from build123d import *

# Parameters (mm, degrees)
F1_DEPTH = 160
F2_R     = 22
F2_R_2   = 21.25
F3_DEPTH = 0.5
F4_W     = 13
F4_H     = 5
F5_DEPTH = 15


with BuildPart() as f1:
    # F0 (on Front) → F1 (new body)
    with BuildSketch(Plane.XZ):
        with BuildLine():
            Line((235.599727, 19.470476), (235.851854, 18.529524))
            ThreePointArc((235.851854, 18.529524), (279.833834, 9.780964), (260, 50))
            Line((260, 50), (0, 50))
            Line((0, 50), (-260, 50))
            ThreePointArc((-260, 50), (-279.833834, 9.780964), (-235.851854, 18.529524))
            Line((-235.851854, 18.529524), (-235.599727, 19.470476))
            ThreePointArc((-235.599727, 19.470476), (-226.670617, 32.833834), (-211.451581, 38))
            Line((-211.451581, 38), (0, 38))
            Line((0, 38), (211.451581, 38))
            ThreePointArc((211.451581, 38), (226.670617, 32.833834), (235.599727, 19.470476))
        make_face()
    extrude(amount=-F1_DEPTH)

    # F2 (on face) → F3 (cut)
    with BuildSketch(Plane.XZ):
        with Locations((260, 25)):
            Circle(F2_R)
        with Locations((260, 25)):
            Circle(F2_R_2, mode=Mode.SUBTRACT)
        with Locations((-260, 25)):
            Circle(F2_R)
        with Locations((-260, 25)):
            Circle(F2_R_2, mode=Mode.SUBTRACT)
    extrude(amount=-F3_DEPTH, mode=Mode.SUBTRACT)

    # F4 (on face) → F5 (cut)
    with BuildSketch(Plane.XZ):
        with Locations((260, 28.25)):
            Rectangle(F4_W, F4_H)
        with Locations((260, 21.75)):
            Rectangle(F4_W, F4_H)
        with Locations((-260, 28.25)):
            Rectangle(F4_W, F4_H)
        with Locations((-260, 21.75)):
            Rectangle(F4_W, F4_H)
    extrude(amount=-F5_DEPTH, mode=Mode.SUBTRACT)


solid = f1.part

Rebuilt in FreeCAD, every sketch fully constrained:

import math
import FreeCAD as App
import Part
import Sketcher
from FreeCAD import Vector
Q = App.Units.Quantity

doc = App.newDocument("Part")
body = doc.addObject("PartDesign::Body", "Body")

# Sketch on XZ plane
sketch1 = doc.addObject("Sketcher::SketchObject", "Sketch")
body.addObject(sketch1)
sketch1.AttachmentSupport = (doc.XZ_Plane, [""])
sketch1.MapMode = "FlatFace"
sketch1.addGeometry(Part.LineSegment(Vector(235.6, 19.5, 0), Vector(235.9, 18.5, 0)), False)
sketch1.addGeometry(Part.ArcOfCircle(Part.Circle(Vector(260, 25, 0), Vector(0, 0, 1), 25), math.radians(-165), math.radians(90)), False)
sketch1.addGeometry(Part.LineSegment(Vector(260, 50, 0), Vector(-260, 50, 0)), False)
sketch1.addGeometry(Part.ArcOfCircle(Part.Circle(Vector(-260, 25, 0), Vector(0, 0, 1), 25), math.radians(90), math.radians(345)), False)
sketch1.addGeometry(Part.LineSegment(Vector(-235.9, 18.5, 0), Vector(-235.6, 19.5, 0)), False)
sketch1.addGeometry(Part.ArcOfCircle(Part.Circle(Vector(-211.5, 13, 0), Vector(0, 0, 1), 25), math.radians(90), math.radians(165)), False)
sketch1.addGeometry(Part.LineSegment(Vector(-211.5, 38, 0), Vector(211.5, 38, 0)), False)
sketch1.addGeometry(Part.ArcOfCircle(Part.Circle(Vector(211.5, 13, 0), Vector(0, 0, 1), 25), math.radians(15), math.radians(90)), False)
sketch1.addConstraint(Sketcher.Constraint("Tangent", 0, 2, 1, 1))
sketch1.addConstraint(Sketcher.Constraint("Tangent", 1, 2, 2, 1))
sketch1.addConstraint(Sketcher.Constraint("Tangent", 2, 2, 3, 1))
sketch1.addConstraint(Sketcher.Constraint("Tangent", 3, 2, 4, 1))
sketch1.addConstraint(Sketcher.Constraint("Tangent", 4, 2, 5, 2))
sketch1.addConstraint(Sketcher.Constraint("Tangent", 5, 1, 6, 1))
sketch1.addConstraint(Sketcher.Constraint("Tangent", 6, 2, 7, 2))
sketch1.addConstraint(Sketcher.Constraint("Tangent", 7, 1, 0, 1))
sketch1.addConstraint(Sketcher.Constraint("Horizontal", 2))
sketch1.addConstraint(Sketcher.Constraint("Horizontal", 6))
sketch1.addConstraint(Sketcher.Constraint("Equal", 1, 3))
sketch1.addConstraint(Sketcher.Constraint("Equal", 3, 5))
sketch1.addConstraint(Sketcher.Constraint("Equal", 5, 7))
sketch1.addConstraint(Sketcher.Constraint("Symmetric", 0, 2, 3, 2, -2))
sketch1.addConstraint(Sketcher.Constraint("Radius", 1, 25.0))
sketch1.addConstraint(Sketcher.Constraint("DistanceX", 2, 2, 2, 1, 520.0))
sketch1.addConstraint(Sketcher.Constraint("Angle", 0, Q("-75.000019 deg")))
sketch1.addConstraint(Sketcher.Constraint("DistanceY", -1, 1, 1, 3, 25.0))
sketch1.addConstraint(Sketcher.Constraint("DistanceY", -1, 1, 5, 3, 13.000001))
pad1 = doc.addObject("PartDesign::Pad", "Pad")
body.addObject(pad1)
pad1.Profile = sketch1
pad1.Length = 160
pad1.Reversed = True

# Sketch on XZ plane
sketch2 = doc.addObject("Sketcher::SketchObject", "Sketch001")
body.addObject(sketch2)
sketch2.AttachmentSupport = (doc.XZ_Plane, [""])
sketch2.MapMode = "FlatFace"
sketch2.addGeometry(Part.Circle(Vector(260, 25, 0), Vector(0, 0, 1), 22), False)
sketch2.addGeometry(Part.Circle(Vector(260, 25, 0), Vector(0, 0, 1), 21), False)
sketch2.addGeometry(Part.Circle(Vector(-260, 25, 0), Vector(0, 0, 1), 22), False)
sketch2.addGeometry(Part.Circle(Vector(-260, 25, 0), Vector(0, 0, 1), 21), False)
sketch2.addConstraint(Sketcher.Constraint("Coincident", 1, 3, 0, 3))
sketch2.addConstraint(Sketcher.Constraint("Coincident", 3, 3, 2, 3))
sketch2.addConstraint(Sketcher.Constraint("Equal", 0, 2))
sketch2.addConstraint(Sketcher.Constraint("Equal", 1, 3))
sketch2.addConstraint(Sketcher.Constraint("Symmetric", 0, 3, 2, 3, -2))
sketch2.addConstraint(Sketcher.Constraint("Diameter", 0, 44.0))
sketch2.addConstraint(Sketcher.Constraint("Diameter", 1, 42.5))
sketch2.addConstraint(Sketcher.Constraint("DistanceX", -1, 1, 0, 3, 260.0))
sketch2.addConstraint(Sketcher.Constraint("DistanceY", -1, 1, 0, 3, 25.0))
pocket1 = doc.addObject("PartDesign::Pocket", "Pocket")
body.addObject(pocket1)
pocket1.Profile = sketch2
pocket1.Length = 0.5

# Sketch on XZ plane
sketch3 = doc.addObject("Sketcher::SketchObject", "Sketch002")
body.addObject(sketch3)
sketch3.AttachmentSupport = (doc.XZ_Plane, [""])
sketch3.MapMode = "FlatFace"
sketch3.addGeometry(Part.LineSegment(Vector(254, 31, 0), Vector(254, 26, 0)), False)
sketch3.addGeometry(Part.LineSegment(Vector(254, 26, 0), Vector(266, 26, 0)), False)
sketch3.addGeometry(Part.LineSegment(Vector(266, 26, 0), Vector(266, 31, 0)), False)
sketch3.addGeometry(Part.LineSegment(Vector(266, 31, 0), Vector(254, 31, 0)), False)
sketch3.addGeometry(Part.LineSegment(Vector(254, 24, 0), Vector(254, 19, 0)), False)
sketch3.addGeometry(Part.LineSegment(Vector(254, 19, 0), Vector(266, 19, 0)), False)
sketch3.addGeometry(Part.LineSegment(Vector(266, 19, 0), Vector(266, 24, 0)), False)
sketch3.addGeometry(Part.LineSegment(Vector(266, 24, 0), Vector(254, 24, 0)), False)
sketch3.addGeometry(Part.LineSegment(Vector(-266, 31, 0), Vector(-266, 26, 0)), False)
sketch3.addGeometry(Part.LineSegment(Vector(-266, 26, 0), Vector(-254, 26, 0)), False)
sketch3.addGeometry(Part.LineSegment(Vector(-254, 26, 0), Vector(-254, 31, 0)), False)
sketch3.addGeometry(Part.LineSegment(Vector(-254, 31, 0), Vector(-266, 31, 0)), False)
sketch3.addGeometry(Part.LineSegment(Vector(-266, 24, 0), Vector(-266, 19, 0)), False)
sketch3.addGeometry(Part.LineSegment(Vector(-266, 19, 0), Vector(-254, 19, 0)), False)
sketch3.addGeometry(Part.LineSegment(Vector(-254, 19, 0), Vector(-254, 24, 0)), False)
sketch3.addGeometry(Part.LineSegment(Vector(-254, 24, 0), Vector(-266, 24, 0)), False)
sketch3.addConstraint(Sketcher.Constraint("Coincident", 0, 2, 1, 1))
sketch3.addConstraint(Sketcher.Constraint("Coincident", 1, 2, 2, 1))
sketch3.addConstraint(Sketcher.Constraint("Coincident", 2, 2, 3, 1))
sketch3.addConstraint(Sketcher.Constraint("Coincident", 3, 2, 0, 1))
sketch3.addConstraint(Sketcher.Constraint("Coincident", 4, 2, 5, 1))
sketch3.addConstraint(Sketcher.Constraint("Coincident", 5, 2, 6, 1))
sketch3.addConstraint(Sketcher.Constraint("Coincident", 6, 2, 7, 1))
sketch3.addConstraint(Sketcher.Constraint("Coincident", 7, 2, 4, 1))
sketch3.addConstraint(Sketcher.Constraint("Coincident", 8, 2, 9, 1))
sketch3.addConstraint(Sketcher.Constraint("Coincident", 9, 2, 10, 1))
sketch3.addConstraint(Sketcher.Constraint("Coincident", 10, 2, 11, 1))
sketch3.addConstraint(Sketcher.Constraint("Coincident", 11, 2, 8, 1))
sketch3.addConstraint(Sketcher.Constraint("Coincident", 12, 2, 13, 1))
sketch3.addConstraint(Sketcher.Constraint("Coincident", 13, 2, 14, 1))
sketch3.addConstraint(Sketcher.Constraint("Coincident", 14, 2, 15, 1))
sketch3.addConstraint(Sketcher.Constraint("Coincident", 15, 2, 12, 1))
sketch3.addConstraint(Sketcher.Constraint("Vertical", 0))
sketch3.addConstraint(Sketcher.Constraint("Horizontal", 1))
sketch3.addConstraint(Sketcher.Constraint("Vertical", 2))
sketch3.addConstraint(Sketcher.Constraint("Horizontal", 3))
sketch3.addConstraint(Sketcher.Constraint("Vertical", 4))
sketch3.addConstraint(Sketcher.Constraint("Horizontal", 5))
sketch3.addConstraint(Sketcher.Constraint("Vertical", 6))
sketch3.addConstraint(Sketcher.Constraint("Horizontal", 7))
sketch3.addConstraint(Sketcher.Constraint("Vertical", 8))
sketch3.addConstraint(Sketcher.Constraint("Horizontal", 9))
sketch3.addConstraint(Sketcher.Constraint("Vertical", 10))
sketch3.addConstraint(Sketcher.Constraint("Horizontal", 11))
sketch3.addConstraint(Sketcher.Constraint("Vertical", 12))
sketch3.addConstraint(Sketcher.Constraint("Horizontal", 13))
sketch3.addConstraint(Sketcher.Constraint("Vertical", 14))
sketch3.addConstraint(Sketcher.Constraint("Horizontal", 15))
sketch3.addConstraint(Sketcher.Constraint("Symmetric", 1, 2, 8, 2, -2))
sketch3.addConstraint(Sketcher.Constraint("Symmetric", 3, 2, 10, 2, -2))
sketch3.addConstraint(Sketcher.Constraint("Symmetric", 5, 2, 12, 2, -2))
sketch3.addConstraint(Sketcher.Constraint("Symmetric", 7, 2, 14, 2, -2))
sketch3.addConstraint(Sketcher.Constraint("Vertical", 3, 2, 4, 2))
sketch3.addConstraint(Sketcher.Constraint("Vertical", 2, 2, 5, 2))
sketch3.addConstraint(Sketcher.Constraint("Equal", 2, 4))
sketch3.addConstraint(Sketcher.Constraint("DistanceX", 1, 1, 1, 2, 13.0))
sketch3.addConstraint(Sketcher.Constraint("DistanceY", 0, 2, 0, 1, 5.0))
sketch3.addConstraint(Sketcher.Constraint("DistanceX", 8, 2, 0, 2, 520.0))
sketch3.addConstraint(Sketcher.Constraint("DistanceY", 4, 2, 0, 2, 6.5))
sketch3.addConstraint(Sketcher.Constraint("DistanceY", -1, 1, 0, 2, 25.75))
pocket2 = doc.addObject("PartDesign::Pocket", "Pocket001")
body.addObject(pocket2)
pocket2.Profile = sketch3
pocket2.Length = 15

doc.recompute()
